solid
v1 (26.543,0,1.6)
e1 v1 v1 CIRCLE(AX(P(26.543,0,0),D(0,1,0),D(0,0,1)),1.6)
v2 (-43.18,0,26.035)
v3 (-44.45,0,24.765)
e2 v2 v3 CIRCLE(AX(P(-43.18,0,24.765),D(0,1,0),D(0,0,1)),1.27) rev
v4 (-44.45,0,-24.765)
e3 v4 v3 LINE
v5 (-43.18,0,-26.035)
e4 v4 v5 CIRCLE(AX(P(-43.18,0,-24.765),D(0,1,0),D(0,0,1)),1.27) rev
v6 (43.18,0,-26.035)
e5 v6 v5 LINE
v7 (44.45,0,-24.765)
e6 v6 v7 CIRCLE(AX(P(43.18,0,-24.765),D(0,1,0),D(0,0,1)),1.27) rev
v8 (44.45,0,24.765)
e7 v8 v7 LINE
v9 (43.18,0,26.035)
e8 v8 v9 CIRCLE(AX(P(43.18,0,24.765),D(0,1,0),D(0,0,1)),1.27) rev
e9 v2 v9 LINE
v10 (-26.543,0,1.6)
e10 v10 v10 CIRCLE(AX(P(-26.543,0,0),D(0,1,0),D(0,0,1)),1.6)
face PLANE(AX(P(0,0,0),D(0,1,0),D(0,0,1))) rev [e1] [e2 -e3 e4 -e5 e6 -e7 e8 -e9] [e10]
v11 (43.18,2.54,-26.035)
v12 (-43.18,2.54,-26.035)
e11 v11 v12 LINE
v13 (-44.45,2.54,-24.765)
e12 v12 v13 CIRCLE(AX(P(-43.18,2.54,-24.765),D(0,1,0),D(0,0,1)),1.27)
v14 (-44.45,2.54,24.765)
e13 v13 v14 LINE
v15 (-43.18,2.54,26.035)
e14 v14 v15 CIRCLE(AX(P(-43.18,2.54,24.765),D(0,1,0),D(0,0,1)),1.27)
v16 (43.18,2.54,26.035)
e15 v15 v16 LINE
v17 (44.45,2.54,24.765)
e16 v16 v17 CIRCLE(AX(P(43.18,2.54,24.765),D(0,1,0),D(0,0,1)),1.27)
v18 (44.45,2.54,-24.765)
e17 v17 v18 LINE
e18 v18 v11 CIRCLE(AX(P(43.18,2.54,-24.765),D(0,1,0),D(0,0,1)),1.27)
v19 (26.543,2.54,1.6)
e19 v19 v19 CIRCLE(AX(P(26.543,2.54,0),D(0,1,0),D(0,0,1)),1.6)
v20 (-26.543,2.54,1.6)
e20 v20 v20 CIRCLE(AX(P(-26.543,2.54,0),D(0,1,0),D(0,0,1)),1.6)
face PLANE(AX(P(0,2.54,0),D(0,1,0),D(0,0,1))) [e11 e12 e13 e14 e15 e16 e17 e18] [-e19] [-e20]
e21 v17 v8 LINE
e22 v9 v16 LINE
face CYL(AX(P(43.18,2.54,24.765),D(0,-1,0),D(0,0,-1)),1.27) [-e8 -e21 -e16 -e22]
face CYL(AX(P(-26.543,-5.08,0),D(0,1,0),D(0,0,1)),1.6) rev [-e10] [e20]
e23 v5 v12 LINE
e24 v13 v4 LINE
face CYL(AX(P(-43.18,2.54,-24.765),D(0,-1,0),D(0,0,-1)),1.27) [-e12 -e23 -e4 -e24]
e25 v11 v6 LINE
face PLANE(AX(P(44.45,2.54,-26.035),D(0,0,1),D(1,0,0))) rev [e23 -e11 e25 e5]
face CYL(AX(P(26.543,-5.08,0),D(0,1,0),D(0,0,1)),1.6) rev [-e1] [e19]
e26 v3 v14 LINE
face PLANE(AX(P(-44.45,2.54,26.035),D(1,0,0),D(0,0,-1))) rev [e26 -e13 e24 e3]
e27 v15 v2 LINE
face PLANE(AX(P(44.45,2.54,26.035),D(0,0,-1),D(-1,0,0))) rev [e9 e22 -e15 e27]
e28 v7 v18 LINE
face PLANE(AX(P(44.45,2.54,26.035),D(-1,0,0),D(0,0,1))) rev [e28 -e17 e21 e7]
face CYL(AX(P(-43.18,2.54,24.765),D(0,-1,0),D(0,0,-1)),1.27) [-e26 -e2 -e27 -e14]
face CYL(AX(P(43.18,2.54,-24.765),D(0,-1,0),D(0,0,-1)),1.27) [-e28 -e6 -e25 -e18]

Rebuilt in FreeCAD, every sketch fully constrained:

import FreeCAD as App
import Part
import Sketcher

V = App.Vector
Q = App.Units.Quantity


def edges_at(feature, points):
    """Names of the edges that pass closest to the given points."""
    edges = feature.Shape.Edges
    near = lambda p: min(range(len(edges)), key=lambda i: edges[i].distToShape(Part.Vertex(*p))[0])
    return sorted({f"Edge{near(p) + 1}" for p in points})


def add_polygon(sketch, points):
    """Adds a closed chain of lines whose ends are joined by coincident constraints."""
    first, n = sketch.GeometryCount, len(points)
    for a, b in zip(points, points[1:] + points[:1]):
        sketch.addGeometry(Part.LineSegment(App.Vector(*a, 0), App.Vector(*b, 0)), False)
    for i in range(n):
        sketch.addConstraint(Sketcher.Constraint("Coincident", first + i, 2, first + (i + 1) % n, 1))

doc = App.newDocument("Part")
params = doc.addObject("Spreadsheet::Sheet", "Params")
for row, (alias, value) in enumerate([
    ("sketch1_width", "3.5 in"),
    ("sketch1_height", "2.05 in"),
    ("pad1_length", "0.1 in"),
    ("fillet_radius", "0.05 in"),
    ("pocket1_length", "0.3 in"),
], start=1):
    params.set(f"A{row}", alias)
    params.set(f"B{row}", "=" + value)
    params.setAlias(f"B{row}", alias)

body = doc.addObject("PartDesign::Body", "Body")

# Sketch on XZ plane
sketch1 = doc.addObject("Sketcher::SketchObject", "Sketch")
body.addObject(sketch1)
sketch1.AttachmentSupport = (doc.XZ_Plane, [""])
sketch1.MapMode = "FlatFace"
add_polygon(sketch1, [(-44.45, -26.035), (-44.45, 26.035), (44.45, 26.035), (44.45, -26.035)])  # lines 0-3
sketch1.addConstraint(Sketcher.Constraint("Vertical", 0))
sketch1.addConstraint(Sketcher.Constraint("Horizontal", 1))
sketch1.addConstraint(Sketcher.Constraint("Vertical", 2))
sketch1.addConstraint(Sketcher.Constraint("Horizontal", 3))
sketch1.addConstraint(Sketcher.Constraint("Symmetric", 0, 2, 2, 2, -1, 1))
sketch1.addConstraint(Sketcher.Constraint("DistanceX", 1, 1, 1, 2, Q("3.5 in")))
sketch1.addConstraint(Sketcher.Constraint("DistanceY", 0, 1, 0, 2, Q("2.05 in")))
sketch1.setExpression("Constraints[9]", "Params.sketch1_width")
sketch1.setExpression("Constraints[10]", "Params.sketch1_height")
pad1 = doc.addObject("PartDesign::Pad", "Pad")
body.addObject(pad1)
pad1.Profile = sketch1
pad1.setExpression("Length", "Params.pad1_length")
pad1.Reversed = True
doc.recompute()

fillet = doc.addObject("PartDesign::Fillet", "Fillet")
body.addObject(fillet)
fillet.Base = (pad1, edges_at(pad1, [
    (-44.45, 1.27, -26.035),
    (44.45, 1.27, -26.035),
    (44.45, 1.27, 26.035),
    (-44.45, 1.27, 26.035),
]))
fillet.setExpression("Radius", "Params.fillet_radius")

# Sketch on XZ plane
sketch2 = doc.addObject("Sketcher::SketchObject", "Sketch001")
body.addObject(sketch2)
sketch2.AttachmentSupport = (doc.XZ_Plane, [""])
sketch2.MapMode = "FlatFace"
sketch2.AttachmentOffset = App.Placement(V(0, 0, -0.1 * 25.4), App.Rotation())
sketch2.addGeometry(Part.Circle(V(-26.543, 0, 0), V(0, 0, 1), 1.6), False)
sketch2.addGeometry(Part.Circle(V(26.543, 0, 0), V(0, 0, 1), 1.6), False)
sketch2.addConstraint(Sketcher.Constraint("Equal", 0, 1))
sketch2.addConstraint(Sketcher.Constraint("Symmetric", 0, 3, 1, 3, -1, 1))
sketch2.addConstraint(Sketcher.Constraint("PointOnObject", 0, 3, -1))
sketch2.addConstraint(Sketcher.Constraint("Diameter", 0, Q("3.2 mm")))
sketch2.addConstraint(Sketcher.Constraint("DistanceX", 0, 3, 1, 3, Q("2.09 in")))
pocket1 = doc.addObject("PartDesign::Pocket", "Pocket")
body.addObject(pocket1)
pocket1.Profile = sketch2
pocket1.setExpression("Length", "Params.pocket1_length")
pocket1.Reversed = True

doc.recompute()
